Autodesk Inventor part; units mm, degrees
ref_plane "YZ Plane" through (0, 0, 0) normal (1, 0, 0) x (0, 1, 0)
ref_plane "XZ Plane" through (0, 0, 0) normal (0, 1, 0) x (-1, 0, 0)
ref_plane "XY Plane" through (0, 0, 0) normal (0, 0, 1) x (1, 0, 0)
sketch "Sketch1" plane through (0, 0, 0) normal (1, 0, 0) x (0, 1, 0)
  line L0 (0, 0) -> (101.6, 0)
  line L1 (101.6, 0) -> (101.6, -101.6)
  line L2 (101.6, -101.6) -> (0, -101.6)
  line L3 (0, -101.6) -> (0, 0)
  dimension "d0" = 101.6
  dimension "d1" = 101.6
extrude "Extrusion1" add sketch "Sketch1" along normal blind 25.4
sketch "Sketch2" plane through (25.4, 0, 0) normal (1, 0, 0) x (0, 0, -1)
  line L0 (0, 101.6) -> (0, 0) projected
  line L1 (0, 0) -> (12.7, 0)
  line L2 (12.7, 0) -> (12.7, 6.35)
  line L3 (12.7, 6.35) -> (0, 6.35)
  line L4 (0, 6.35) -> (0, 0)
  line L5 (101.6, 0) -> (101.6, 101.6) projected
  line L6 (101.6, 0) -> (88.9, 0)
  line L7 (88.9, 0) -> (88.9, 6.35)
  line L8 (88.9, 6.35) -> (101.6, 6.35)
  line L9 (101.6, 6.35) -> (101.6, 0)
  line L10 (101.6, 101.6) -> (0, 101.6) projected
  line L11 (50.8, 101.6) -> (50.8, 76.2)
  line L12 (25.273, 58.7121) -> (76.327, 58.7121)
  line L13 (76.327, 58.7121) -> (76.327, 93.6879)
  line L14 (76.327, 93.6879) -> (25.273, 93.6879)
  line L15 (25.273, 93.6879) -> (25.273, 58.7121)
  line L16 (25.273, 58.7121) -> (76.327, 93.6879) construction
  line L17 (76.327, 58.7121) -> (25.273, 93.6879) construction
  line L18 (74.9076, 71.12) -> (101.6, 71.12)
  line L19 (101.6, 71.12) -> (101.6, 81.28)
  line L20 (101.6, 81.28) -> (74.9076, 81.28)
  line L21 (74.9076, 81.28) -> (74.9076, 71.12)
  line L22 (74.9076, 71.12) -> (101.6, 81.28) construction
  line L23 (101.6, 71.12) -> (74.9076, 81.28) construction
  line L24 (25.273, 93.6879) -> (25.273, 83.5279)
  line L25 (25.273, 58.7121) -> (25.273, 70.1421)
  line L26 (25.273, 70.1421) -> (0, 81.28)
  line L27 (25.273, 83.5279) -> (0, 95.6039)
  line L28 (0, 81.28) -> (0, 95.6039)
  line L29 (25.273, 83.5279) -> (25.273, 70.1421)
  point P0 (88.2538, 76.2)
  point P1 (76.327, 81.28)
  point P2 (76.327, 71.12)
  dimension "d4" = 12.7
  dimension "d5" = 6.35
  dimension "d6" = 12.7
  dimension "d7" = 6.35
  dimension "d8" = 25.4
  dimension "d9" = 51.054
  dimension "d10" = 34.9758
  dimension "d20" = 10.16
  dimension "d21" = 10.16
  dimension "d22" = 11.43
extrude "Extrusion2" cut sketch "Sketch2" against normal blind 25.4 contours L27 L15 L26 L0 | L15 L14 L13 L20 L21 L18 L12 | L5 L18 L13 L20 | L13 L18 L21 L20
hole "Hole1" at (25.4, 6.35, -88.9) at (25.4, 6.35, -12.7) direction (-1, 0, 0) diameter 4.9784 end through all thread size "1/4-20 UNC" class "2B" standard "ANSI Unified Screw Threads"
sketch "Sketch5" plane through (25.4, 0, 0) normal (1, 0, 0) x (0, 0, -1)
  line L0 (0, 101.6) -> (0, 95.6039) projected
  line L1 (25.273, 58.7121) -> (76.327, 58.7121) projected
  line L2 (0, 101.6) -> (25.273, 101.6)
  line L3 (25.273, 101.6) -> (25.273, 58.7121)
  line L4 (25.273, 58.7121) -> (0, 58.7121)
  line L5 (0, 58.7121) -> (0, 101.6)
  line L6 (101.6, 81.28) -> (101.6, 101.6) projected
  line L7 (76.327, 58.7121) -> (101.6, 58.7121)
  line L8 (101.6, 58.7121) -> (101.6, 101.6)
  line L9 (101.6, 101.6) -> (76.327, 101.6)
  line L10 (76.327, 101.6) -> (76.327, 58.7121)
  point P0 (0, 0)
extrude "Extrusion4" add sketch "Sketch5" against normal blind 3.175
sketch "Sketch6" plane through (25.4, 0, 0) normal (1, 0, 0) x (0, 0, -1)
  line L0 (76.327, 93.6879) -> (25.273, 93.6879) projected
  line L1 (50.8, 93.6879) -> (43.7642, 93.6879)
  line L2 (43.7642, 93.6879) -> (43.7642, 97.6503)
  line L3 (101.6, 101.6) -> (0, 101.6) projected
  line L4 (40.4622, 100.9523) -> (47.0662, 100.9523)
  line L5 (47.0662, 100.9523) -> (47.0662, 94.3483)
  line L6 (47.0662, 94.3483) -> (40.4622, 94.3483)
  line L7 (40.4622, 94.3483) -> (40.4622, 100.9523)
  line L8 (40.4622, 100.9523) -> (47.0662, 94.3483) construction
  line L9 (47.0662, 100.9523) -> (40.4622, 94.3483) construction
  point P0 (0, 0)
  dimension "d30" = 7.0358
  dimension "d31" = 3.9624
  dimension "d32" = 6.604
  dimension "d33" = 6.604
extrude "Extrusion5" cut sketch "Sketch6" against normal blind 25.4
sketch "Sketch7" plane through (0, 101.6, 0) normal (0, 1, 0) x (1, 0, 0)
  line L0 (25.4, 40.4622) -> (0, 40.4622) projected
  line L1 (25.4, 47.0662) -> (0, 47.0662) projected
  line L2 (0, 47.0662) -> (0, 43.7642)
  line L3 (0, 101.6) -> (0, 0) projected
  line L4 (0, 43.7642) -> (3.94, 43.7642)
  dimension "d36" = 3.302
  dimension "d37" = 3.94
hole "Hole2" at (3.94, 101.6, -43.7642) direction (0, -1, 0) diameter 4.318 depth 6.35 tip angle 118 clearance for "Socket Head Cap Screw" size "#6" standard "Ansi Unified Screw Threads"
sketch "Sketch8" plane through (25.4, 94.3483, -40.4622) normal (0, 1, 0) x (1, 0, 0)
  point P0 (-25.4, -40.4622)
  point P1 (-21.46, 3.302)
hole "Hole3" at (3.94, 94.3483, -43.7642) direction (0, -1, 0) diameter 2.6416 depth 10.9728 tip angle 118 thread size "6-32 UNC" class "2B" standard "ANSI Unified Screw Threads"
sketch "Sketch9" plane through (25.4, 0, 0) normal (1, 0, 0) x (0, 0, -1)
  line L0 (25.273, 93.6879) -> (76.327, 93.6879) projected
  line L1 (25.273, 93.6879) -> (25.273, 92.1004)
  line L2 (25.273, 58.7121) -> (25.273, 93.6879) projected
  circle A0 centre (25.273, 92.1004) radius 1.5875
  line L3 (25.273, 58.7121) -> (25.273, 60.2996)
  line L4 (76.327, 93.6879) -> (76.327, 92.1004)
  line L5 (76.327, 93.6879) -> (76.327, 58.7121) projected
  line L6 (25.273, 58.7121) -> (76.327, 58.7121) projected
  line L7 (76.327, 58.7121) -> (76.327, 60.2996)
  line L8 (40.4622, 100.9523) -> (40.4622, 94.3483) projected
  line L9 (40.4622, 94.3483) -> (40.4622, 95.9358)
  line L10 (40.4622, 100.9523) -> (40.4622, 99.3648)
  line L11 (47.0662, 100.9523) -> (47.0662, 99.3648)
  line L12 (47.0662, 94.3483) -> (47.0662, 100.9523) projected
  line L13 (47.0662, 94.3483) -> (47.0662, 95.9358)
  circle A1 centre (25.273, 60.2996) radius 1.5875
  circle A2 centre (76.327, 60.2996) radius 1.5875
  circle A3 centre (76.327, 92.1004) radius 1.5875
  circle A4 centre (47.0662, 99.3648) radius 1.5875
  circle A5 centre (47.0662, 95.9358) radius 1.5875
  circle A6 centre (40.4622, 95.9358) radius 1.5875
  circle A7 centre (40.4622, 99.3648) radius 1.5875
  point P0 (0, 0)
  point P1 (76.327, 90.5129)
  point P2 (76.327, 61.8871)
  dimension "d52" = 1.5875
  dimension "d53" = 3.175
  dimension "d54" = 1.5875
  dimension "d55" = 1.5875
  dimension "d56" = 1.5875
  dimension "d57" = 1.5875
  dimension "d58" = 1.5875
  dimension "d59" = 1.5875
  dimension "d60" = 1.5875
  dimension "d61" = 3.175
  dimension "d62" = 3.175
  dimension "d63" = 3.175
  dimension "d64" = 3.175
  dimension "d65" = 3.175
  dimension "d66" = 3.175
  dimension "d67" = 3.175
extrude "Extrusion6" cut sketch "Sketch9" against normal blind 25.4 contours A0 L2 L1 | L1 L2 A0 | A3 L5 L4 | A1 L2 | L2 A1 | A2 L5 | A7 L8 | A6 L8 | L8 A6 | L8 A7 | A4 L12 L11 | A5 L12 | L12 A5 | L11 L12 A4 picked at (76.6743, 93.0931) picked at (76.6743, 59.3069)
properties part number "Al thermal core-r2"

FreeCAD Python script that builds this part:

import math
import FreeCAD as App
import Part
import Sketcher
Q = App.Units.Quantity

doc = App.newDocument("Part")
body = doc.addObject("PartDesign::Body", "Body")
body.AllowCompound = True

# Sketch on YZ plane
sketch1 = body.newObject("Sketcher::SketchObject", "Sketch")
sketch1.AttachmentSupport = (doc.getObject("YZ_Plane"), [""])
sketch1.MapMode = "FlatFace"
sketch1.addGeometry(Part.LineSegment(App.Vector(102, 0, 0), App.Vector(0, 0, 0)), False)
sketch1.addGeometry(Part.LineSegment(App.Vector(0, 0, 0), App.Vector(0, -102, 0)), False)
sketch1.addGeometry(Part.LineSegment(App.Vector(0, -102, 0), App.Vector(102, -102, 0)), False)
sketch1.addGeometry(Part.LineSegment(App.Vector(102, -102, 0), App.Vector(102, 0, 0)), False)
sketch1.addConstraint(Sketcher.Constraint("Coincident", 0, 2, 1, 1))
sketch1.addConstraint(Sketcher.Constraint("Coincident", 1, 2, 2, 1))
sketch1.addConstraint(Sketcher.Constraint("Coincident", 2, 2, 3, 1))
sketch1.addConstraint(Sketcher.Constraint("Coincident", 3, 2, 0, 1))
sketch1.addConstraint(Sketcher.Constraint("Horizontal", 0))
sketch1.addConstraint(Sketcher.Constraint("Vertical", 1))
sketch1.addConstraint(Sketcher.Constraint("Horizontal", 2))
sketch1.addConstraint(Sketcher.Constraint("Vertical", 3))
sketch1.addConstraint(Sketcher.Constraint("Coincident", 0, 2, -1, 1))
sketch1.addConstraint(Sketcher.Constraint("Equal", 2, 1))
sketch1.addConstraint(Sketcher.Constraint("DistanceX", 0, 2, 0, 1, Q("4 in")))
pad1 = body.newObject("PartDesign::Pad", "Pad")
pad1.Profile = sketch1
pad1.Length = Q("1 in")

# Sketch on YZ plane
sketch2 = body.newObject("Sketcher::SketchObject", "Sketch001")
sketch2.AttachmentSupport = (doc.getObject("YZ_Plane"), [""])
sketch2.MapMode = "FlatFace"
sketch2.AttachmentOffset = App.Placement(App.Vector(0, 0, 1 * 25.4), App.Rotation())
sketch2.addGeometry(Part.LineSegment(App.Vector(84, -25, 0), App.Vector(96, 0, 0)), False)
sketch2.addGeometry(Part.LineSegment(App.Vector(96, 0, 0), App.Vector(81, 0, 0)), False)
sketch2.addGeometry(Part.LineSegment(App.Vector(81, 0, 0), App.Vector(70, -25, 0)), False)
sketch2.addGeometry(Part.LineSegment(App.Vector(70, -25, 0), App.Vector(59, -25, 0)), False)
sketch2.addGeometry(Part.LineSegment(App.Vector(59, -25, 0), App.Vector(59, -76, 0)), False)
sketch2.addGeometry(Part.LineSegment(App.Vector(59, -76, 0), App.Vector(71, -76, 0)), False)
sketch2.addGeometry(Part.LineSegment(App.Vector(71, -76, 0), App.Vector(71, -102, 0)), False)
sketch2.addGeometry(Part.LineSegment(App.Vector(71, -102, 0), App.Vector(81, -102, 0)), False)
sketch2.addGeometry(Part.LineSegment(App.Vector(81, -102, 0), App.Vector(81, -76, 0)), False)
sketch2.addGeometry(Part.LineSegment(App.Vector(81, -76, 0), App.Vector(94, -76, 0)), False)
sketch2.addGeometry(Part.LineSegment(App.Vector(94, -76, 0), App.Vector(94, -25, 0)), False)
sketch2.addGeometry(Part.LineSegment(App.Vector(94, -25, 0), App.Vector(84, -25, 0)), False)
sketch2.addConstraint(Sketcher.Constraint("Coincident", 0, 2, 1, 1))
sketch2.addConstraint(Sketcher.Constraint("Coincident", 1, 2, 2, 1))
sketch2.addConstraint(Sketcher.Constraint("Coincident", 2, 2, 3, 1))
sketch2.addConstraint(Sketcher.Constraint("Coincident", 3, 2, 4, 1))
sketch2.addConstraint(Sketcher.Constraint("Coincident", 4, 2, 5, 1))
sketch2.addConstraint(Sketcher.Constraint("Coincident", 5, 2, 6, 1))
sketch2.addConstraint(Sketcher.Constraint("Coincident", 6, 2, 7, 1))
sketch2.addConstraint(Sketcher.Constraint("Coincident", 7, 2, 8, 1))
sketch2.addConstraint(Sketcher.Constraint("Coincident", 8, 2, 9, 1))
sketch2.addConstraint(Sketcher.Constraint("Coincident", 9, 2, 10, 1))
sketch2.addConstraint(Sketcher.Constraint("Coincident", 10, 2, 11, 1))
sketch2.addConstraint(Sketcher.Constraint("Coincident", 11, 2, 0, 1))
sketch2.addConstraint(Sketcher.Constraint("Horizontal", 1))
sketch2.addConstraint(Sketcher.Constraint("Horizontal", 3))
sketch2.addConstraint(Sketcher.Constraint("Vertical", 4))
sketch2.addConstraint(Sketcher.Constraint("Horizontal", 5))
sketch2.addConstraint(Sketcher.Constraint("Vertical", 6))
sketch2.addConstraint(Sketcher.Constraint("Horizontal", 7))
sketch2.addConstraint(Sketcher.Constraint("Vertical", 8))
sketch2.addConstraint(Sketcher.Constraint("Horizontal", 9))
sketch2.addConstraint(Sketcher.Constraint("Vertical", 10))
sketch2.addConstraint(Sketcher.Constraint("Horizontal", 11))
sketch2.addConstraint(Sketcher.Constraint("PointOnObject", 0, 2, -1))
sketch2.addConstraint(Sketcher.Constraint("Horizontal", 5, 2, 8, 2))
sketch2.addConstraint(Sketcher.Constraint("Horizontal", 3, 2, 10, 2))
sketch2.addConstraint(Sketcher.Constraint("Vertical", 1, 2, 7, 2))
sketch2.addConstraint(Sketcher.Constraint("Equal", 5, 9))
sketch2.addConstraint(Sketcher.Constraint("Equal", 7, 11))
sketch2.addConstraint(Sketcher.Constraint("DistanceX", 7, 1, 7, 2, Q("0.4 in")))
sketch2.addConstraint(Sketcher.Constraint("DistanceX", 3, 2, 3, 1, Q("0.45 in")))
sketch2.addConstraint(Sketcher.Constraint("DistanceY", 4, 2, 4, 1, Q("2.01 in")))
sketch2.addConstraint(Sketcher.Constraint("DistanceY", 6, 2, -1, 1, Q("4 in")))
sketch2.addConstraint(Sketcher.Constraint("DistanceX", 4, 2, 9, 2, Q("1.377 in")))
sketch2.addConstraint(Sketcher.Constraint("DistanceX", -1, 1, 1, 2, Q("3.2 in")))
sketch2.addConstraint(Sketcher.Constraint("DistanceY", 6, 2, 6, 1, Q("0.995 in")))
sketch2.addConstraint(Sketcher.Constraint("Angle", 0, Q("64.4605 deg")))
pocket1 = body.newObject("PartDesign::Pocket", "Pocket")
pocket1.Profile = sketch2
pocket1.Length = Q("1 in")

# Sketch on YZ plane
sketch3 = body.newObject("Sketcher::SketchObject", "Sketch002")
sketch3.AttachmentSupport = (doc.getObject("YZ_Plane"), [""])
sketch3.MapMode = "FlatFace"
sketch3.AttachmentOffset = App.Placement(App.Vector(0, 0, 1 * 25.4), App.Rotation())
sketch3.addGeometry(Part.Circle(App.Vector(6.3, -88.9, 0), App.Vector(0, 0, 1), 2.5), False)
sketch3.addGeometry(Part.Circle(App.Vector(6.3, -12.7, 0), App.Vector(0, 0, 1), 2.5), False)
sketch3.addConstraint(Sketcher.Constraint("Equal", 0, 1))
sketch3.addConstraint(Sketcher.Constraint("Vertical", 0, 3, 1, 3))
sketch3.addConstraint(Sketcher.Constraint("Diameter", 0, Q("0.196 in")))
sketch3.addConstraint(Sketcher.Constraint("DistanceY", 0, 3, 1, 3, Q("3 in")))
sketch3.addConstraint(Sketcher.Constraint("DistanceY", 0, 3, -1, 1, Q("3.5 in")))
sketch3.addConstraint(Sketcher.Constraint("DistanceX", -1, 1, 0, 3, Q("0.25 in")))
doc.recompute()
hole = body.newObject("PartDesign::Hole", "Hole")
hole.Profile = sketch3
hole.ThreadType = "None"
hole.Diameter = Q("0.196 in")
hole.DepthType = "ThroughAll"

# Sketch on YZ plane
sketch4 = body.newObject("Sketcher::SketchObject", "Sketch003")
sketch4.AttachmentSupport = (doc.getObject("YZ_Plane"), [""])
sketch4.MapMode = "FlatFace"
sketch4.AttachmentOffset = App.Placement(App.Vector(0, 0, 1 * 25.4), App.Rotation())
sketch4.addGeometry(Part.LineSegment(App.Vector(102, -25, 0), App.Vector(102, 0, 0)), False)
sketch4.addGeometry(Part.LineSegment(App.Vector(102, 0, 0), App.Vector(59, 0, 0)), False)
sketch4.addGeometry(Part.LineSegment(App.Vector(59, 0, 0), App.Vector(59, -25, 0)), False)
sketch4.addGeometry(Part.LineSegment(App.Vector(59, -25, 0), App.Vector(102, -25, 0)), False)
sketch4.addGeometry(Part.LineSegment(App.Vector(102, -76, 0), App.Vector(59, -76, 0)), False)
sketch4.addGeometry(Part.LineSegment(App.Vector(59, -76, 0), App.Vector(59, -102, 0)), False)
sketch4.addGeometry(Part.LineSegment(App.Vector(59, -102, 0), App.Vector(102, -102, 0)), False)
sketch4.addGeometry(Part.LineSegment(App.Vector(102, -102, 0), App.Vector(102, -76, 0)), False)
sketch4.addConstraint(Sketcher.Constraint("Coincident", 0, 2, 1, 1))
sketch4.addConstraint(Sketcher.Constraint("Coincident", 1, 2, 2, 1))
sketch4.addConstraint(Sketcher.Constraint("Coincident", 2, 2, 3, 1))
sketch4.addConstraint(Sketcher.Constraint("Coincident", 3, 2, 0, 1))
sketch4.addConstraint(Sketcher.Constraint("Coincident", 4, 2, 5, 1))
sketch4.addConstraint(Sketcher.Constraint("Coincident", 5, 2, 6, 1))
sketch4.addConstraint(Sketcher.Constraint("Coincident", 6, 2, 7, 1))
sketch4.addConstraint(Sketcher.Constraint("Coincident", 7, 2, 4, 1))
sketch4.addConstraint(Sketcher.Constraint("Vertical", 0))
sketch4.addConstraint(Sketcher.Constraint("Horizontal", 1))
sketch4.addConstraint(Sketcher.Constraint("Vertical", 2))
sketch4.addConstraint(Sketcher.Constraint("Horizontal", 3))
sketch4.addConstraint(Sketcher.Constraint("Horizontal", 4))
sketch4.addConstraint(Sketcher.Constraint("Vertical", 5))
sketch4.addConstraint(Sketcher.Constraint("Horizontal", 6))
sketch4.addConstraint(Sketcher.Constraint("Vertical", 7))
sketch4.addConstraint(Sketcher.Constraint("PointOnObject", 0, 2, -1))
sketch4.addConstraint(Sketcher.Constraint("Vertical", 2, 2, 4, 2))
sketch4.addConstraint(Sketcher.Constraint("Vertical", 3, 2, 6, 2))
sketch4.addConstraint(Sketcher.Constraint("Equal", 2, 5))
sketch4.addConstraint(Sketcher.Constraint("DistanceX", -1, 1, 0, 2, Q("4 in")))
sketch4.addConstraint(Sketcher.Constraint("DistanceY", 5, 2, -1, 1, Q("4 in")))
sketch4.addConstraint(Sketcher.Constraint("DistanceY", 0, 1, 0, 2, Q("0.995 in")))
sketch4.addConstraint(Sketcher.Constraint("DistanceX", 1, 2, 1, 1, Q("1.6885 in")))
pad2 = body.newObject("PartDesign::Pad", "Pad001")
pad2.Profile = sketch4
pad2.Length = Q("0.125 in")
pad2.Reversed = True

# Sketch on YZ plane
sketch5 = body.newObject("Sketcher::SketchObject", "Sketch004")
sketch5.AttachmentSupport = (doc.getObject("YZ_Plane"), [""])
sketch5.MapMode = "FlatFace"
sketch5.AttachmentOffset = App.Placement(App.Vector(0, 0, 1 * 25.4), App.Rotation())
sketch5.addGeometry(Part.LineSegment(App.Vector(101, -47, 0), App.Vector(101, -40, 0)), False)
sketch5.addGeometry(Part.LineSegment(App.Vector(101, -40, 0), App.Vector(94, -40, 0)), False)
sketch5.addGeometry(Part.LineSegment(App.Vector(94, -40, 0), App.Vector(94, -47, 0)), False)
sketch5.addGeometry(Part.LineSegment(App.Vector(94, -47, 0), App.Vector(101, -47, 0)), False)
sketch5.addConstraint(Sketcher.Constraint("Coincident", 0, 2, 1, 1))
sketch5.addConstraint(Sketcher.Constraint("Coincident", 1, 2, 2, 1))
sketch5.addConstraint(Sketcher.Constraint("Coincident", 2, 2, 3, 1))
sketch5.addConstraint(Sketcher.Constraint("Coincident", 3, 2, 0, 1))
sketch5.addConstraint(Sketcher.Constraint("Vertical", 0))
sketch5.addConstraint(Sketcher.Constraint("Horizontal", 1))
sketch5.addConstraint(Sketcher.Constraint("Vertical", 2))
sketch5.addConstraint(Sketcher.Constraint("Horizontal", 3))
sketch5.addConstraint(Sketcher.Constraint("Equal", 3, 0))
sketch5.addConstraint(Sketcher.Constraint("DistanceX", 1, 2, 1, 1, Q("0.26 in")))
sketch5.addConstraint(Sketcher.Constraint("DistanceY", 0, 2, -1, 1, Q("1.593 in")))
sketch5.addConstraint(Sketcher.Constraint("DistanceX", -1, 1, 0, 2, Q("3.9745 in")))
pocket2 = body.newObject("PartDesign::Pocket", "Pocket001")
pocket2.Profile = sketch5
pocket2.Length = Q("1 in")

# Sketch on XZ plane
sketch6 = body.newObject("Sketcher::SketchObject", "Sketch005")
sketch6.AttachmentSupport = (doc.getObject("XZ_Plane"), [""])
sketch6.MapMode = "FlatFace"
sketch6.AttachmentOffset = App.Placement(App.Vector(0, 0, -4 * 25.4), App.Rotation())
sketch6.addGeometry(Part.Circle(App.Vector(3.9, -43.8, 0), App.Vector(0, 0, 1), 2.2), False)
sketch6.addConstraint(Sketcher.Constraint("Diameter", 0, Q("0.17 in")))
sketch6.addConstraint(Sketcher.Constraint("DistanceY", 0, 3, -1, 1, Q("1.723 in")))
sketch6.addConstraint(Sketcher.Constraint("DistanceX", -1, 1, 0, 3, Q("3.94 mm")))
doc.recompute()
hole2 = body.newObject("PartDesign::Hole", "Hole001")
hole2.Profile = sketch6
hole2.ThreadType = "None"
hole2.Diameter = Q("0.17 in")
hole2.DepthType = "Dimension"
hole2.Depth = Q("0.25 in")
hole2.DrillPoint = "Angled"
hole2.DrillPointAngle = 118
hole2.Reversed = True

# Sketch on XZ plane
sketch7 = body.newObject("Sketcher::SketchObject", "Sketch006")
sketch7.AttachmentSupport = (doc.getObject("XZ_Plane"), [""])
sketch7.MapMode = "FlatFace"
sketch7.AttachmentOffset = App.Placement(App.Vector(0, 0, -3.7145 * 25.4), App.Rotation())
sketch7.addGeometry(Part.Circle(App.Vector(3.9, -43.8, 0), App.Vector(0, 0, 1), 1.3), False)
sketch7.addConstraint(Sketcher.Constraint("Diameter", 0, Q("0.104 in")))
sketch7.addConstraint(Sketcher.Constraint("DistanceY", 0, 3, -1, 1, Q("1.723 in")))
sketch7.addConstraint(Sketcher.Constraint("DistanceX", -1, 1, 0, 3, Q("3.94 mm")))
doc.recompute()
hole3 = body.newObject("PartDesign::Hole", "Hole002")
hole3.Profile = sketch7
hole3.ThreadType = "None"
hole3.Diameter = Q("0.104 in")
hole3.DepthType = "Dimension"
hole3.Depth = Q("0.432 in")
hole3.DrillPoint = "Angled"
hole3.DrillPointAngle = 118
hole3.Reversed = True

# Sketch on YZ plane
sketch8 = body.newObject("Sketcher::SketchObject", "Sketch007")
sketch8.AttachmentSupport = (doc.getObject("YZ_Plane"), [""])
sketch8.MapMode = "FlatFace"
sketch8.AttachmentOffset = App.Placement(App.Vector(0, 0, 1 * 25.4), App.Rotation())
sketch8.addGeometry(Part.Circle(App.Vector(92.1, -25.3, 0), App.Vector(0, 0, 1), 1.6), False)
sketch8.addGeometry(Part.ArcOfCircle(Part.Circle(App.Vector(92.1, -76.3, 0), App.Vector(0, 0, 1), 1.6), math.radians(180), math.radians(360)), False)
sketch8.addGeometry(Part.LineSegment(App.Vector(93.7, -76.3, 0), App.Vector(90.5, -76.3, 0)), False)
sketch8.addGeometry(Part.Circle(App.Vector(60.3, -25.3, 0), App.Vector(0, 0, 1), 1.6), False)
sketch8.addGeometry(Part.ArcOfCircle(Part.Circle(App.Vector(60.3, -76.3, 0), App.Vector(0, 0, 1), 1.6), math.radians(180), math.radians(360)), False)
sketch8.addGeometry(Part.LineSegment(App.Vector(61.9, -76.3, 0), App.Vector(58.7, -76.3, 0)), False)
sketch8.addGeometry(Part.Circle(App.Vector(99.4, -40.5, 0), App.Vector(0, 0, 1), 1.6), False)
sketch8.addGeometry(Part.Circle(App.Vector(95.9, -40.5, 0), App.Vector(0, 0, 1), 1.6), False)
sketch8.addGeometry(Part.Circle(App.Vector(99.4, -47.1, 0), App.Vector(0, 0, 1), 1.6), False)
sketch8.addGeometry(Part.Circle(App.Vector(95.9, -47.1, 0), App.Vector(0, 0, 1), 1.6), False)
sketch8.addConstraint(Sketcher.Constraint("Coincident", 1, 1, 2, 2))
sketch8.addConstraint(Sketcher.Constraint("Coincident", 2, 1, 1, 2))
sketch8.addConstraint(Sketcher.Constraint("Coincident", 4, 1, 5, 2))
sketch8.addConstraint(Sketcher.Constraint("Coincident", 5, 1, 4, 2))
sketch8.addConstraint(Sketcher.Constraint("Horizontal", 2))
sketch8.addConstraint(Sketcher.Constraint("Horizontal", 5))
sketch8.addConstraint(Sketcher.Constraint("Equal", 0, 1))
sketch8.addConstraint(Sketcher.Constraint("Equal", 1, 3))
sketch8.addConstraint(Sketcher.Constraint("Equal", 3, 4))
sketch8.addConstraint(Sketcher.Constraint("Equal", 4, 6))
sketch8.addConstraint(Sketcher.Constraint("Equal", 6, 7))
sketch8.addConstraint(Sketcher.Constraint("Equal", 7, 8))
sketch8.addConstraint(Sketcher.Constraint("Equal", 8, 9))
sketch8.addConstraint(Sketcher.Constraint("Horizontal", 0, 3, 3, 3))
sketch8.addConstraint(Sketcher.Constraint("Horizontal", 1, 3, 4, 3))
sketch8.addConstraint(Sketcher.Constraint("Horizontal", 6, 3, 7, 3))
sketch8.addConstraint(Sketcher.Constraint("Horizontal", 8, 3, 9, 3))
sketch8.addConstraint(Sketcher.Constraint("Horizontal", 4, 3, 1, 1))
sketch8.addConstraint(Sketcher.Constraint("Horizontal", 2, 1, 4, 1))
sketch8.addConstraint(Sketcher.Constraint("Vertical", 0, 3, 1, 3))
sketch8.addConstraint(Sketcher.Constraint("Vertical", 3, 3, 4, 3))
sketch8.addConstraint(Sketcher.Constraint("Vertical", 6, 3, 8, 3))
sketch8.addConstraint(Sketcher.Constraint("Vertical", 7, 3, 9, 3))
sketch8.addConstraint(Sketcher.Constraint("Diameter", 0, Q("0.125 in")))
sketch8.addConstraint(Sketcher.Constraint("DistanceY", 1, 3, 0, 3, Q("2.01 in")))
sketch8.addConstraint(Sketcher.Constraint("DistanceY", 8, 3, 6, 3, Q("0.26 in")))
sketch8.addConstraint(Sketcher.Constraint("DistanceX", -1, 1, 0, 3, Q("3.626 in")))
sketch8.addConstraint(Sketcher.Constraint("DistanceY", 0, 3, -1, 1, Q("0.995 in")))
sketch8.addConstraint(Sketcher.Constraint("DistanceX", -1, 1, 3, 3, Q("2.374 in")))
sketch8.addConstraint(Sketcher.Constraint("DistanceX", -1, 1, 6, 3, Q("3.912 in")))
sketch8.addConstraint(Sketcher.Constraint("DistanceY", 6, 3, -1, 1, Q("1.593 in")))
sketch8.addConstraint(Sketcher.Constraint("DistanceX", -1, 1, 7, 3, Q("3.777 in")))
pocket3 = body.newObject("PartDesign::Pocket", "Pocket002")
pocket3.Profile = sketch8
pocket3.Length = Q("1 in")

doc.recompute()
